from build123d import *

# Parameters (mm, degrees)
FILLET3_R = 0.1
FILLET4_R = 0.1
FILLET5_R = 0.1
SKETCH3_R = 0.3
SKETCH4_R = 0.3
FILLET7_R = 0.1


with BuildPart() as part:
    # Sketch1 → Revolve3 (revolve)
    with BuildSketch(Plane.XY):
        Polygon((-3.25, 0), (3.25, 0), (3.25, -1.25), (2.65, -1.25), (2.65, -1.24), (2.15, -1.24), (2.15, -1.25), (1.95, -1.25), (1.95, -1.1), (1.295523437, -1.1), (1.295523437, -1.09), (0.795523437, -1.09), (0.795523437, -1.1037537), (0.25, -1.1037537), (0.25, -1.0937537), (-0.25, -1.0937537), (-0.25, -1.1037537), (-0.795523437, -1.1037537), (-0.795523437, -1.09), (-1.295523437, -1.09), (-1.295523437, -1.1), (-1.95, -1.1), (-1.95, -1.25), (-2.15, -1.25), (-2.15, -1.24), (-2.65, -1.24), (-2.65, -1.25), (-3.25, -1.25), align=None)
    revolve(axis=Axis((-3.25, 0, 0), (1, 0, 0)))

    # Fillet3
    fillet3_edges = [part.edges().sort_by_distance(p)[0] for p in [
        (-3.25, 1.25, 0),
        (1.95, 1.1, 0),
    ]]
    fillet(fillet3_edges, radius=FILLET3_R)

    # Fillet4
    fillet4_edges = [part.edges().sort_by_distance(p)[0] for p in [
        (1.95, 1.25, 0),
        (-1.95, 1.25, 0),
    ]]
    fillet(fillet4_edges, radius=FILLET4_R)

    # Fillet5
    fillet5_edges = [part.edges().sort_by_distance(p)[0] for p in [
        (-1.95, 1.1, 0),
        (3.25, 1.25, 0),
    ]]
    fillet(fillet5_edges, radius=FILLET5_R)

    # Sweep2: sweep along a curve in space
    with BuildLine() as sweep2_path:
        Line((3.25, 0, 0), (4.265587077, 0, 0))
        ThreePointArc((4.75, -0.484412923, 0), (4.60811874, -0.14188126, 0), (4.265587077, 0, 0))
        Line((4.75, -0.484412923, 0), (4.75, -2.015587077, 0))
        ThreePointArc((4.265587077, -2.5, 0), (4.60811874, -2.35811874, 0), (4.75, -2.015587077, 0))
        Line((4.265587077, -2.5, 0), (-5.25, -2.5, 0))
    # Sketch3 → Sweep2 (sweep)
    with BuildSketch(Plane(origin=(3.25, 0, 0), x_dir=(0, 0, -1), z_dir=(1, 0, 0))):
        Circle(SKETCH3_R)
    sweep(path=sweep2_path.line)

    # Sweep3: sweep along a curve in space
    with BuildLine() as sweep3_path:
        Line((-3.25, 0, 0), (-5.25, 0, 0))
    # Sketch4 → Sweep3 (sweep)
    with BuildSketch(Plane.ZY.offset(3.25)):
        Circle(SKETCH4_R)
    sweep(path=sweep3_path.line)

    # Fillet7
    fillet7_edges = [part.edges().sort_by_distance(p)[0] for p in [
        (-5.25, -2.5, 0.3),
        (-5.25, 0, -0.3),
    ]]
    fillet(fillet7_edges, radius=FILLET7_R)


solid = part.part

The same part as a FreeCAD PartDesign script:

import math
import FreeCAD as App
import Part
import Sketcher
from FreeCAD import Vector
Q = App.Units.Quantity


def edges_at(feature, points):
    """Names of the edges that pass closest to the given points."""
    edges = feature.Shape.Edges
    near = lambda p: min(range(len(edges)), key=lambda i: edges[i].distToShape(Part.Vertex(*p))[0])
    return sorted({f"Edge{near(p) + 1}" for p in points})

doc = App.newDocument("Part")
params = doc.addObject("Spreadsheet::Sheet", "Params")
for row, (alias, value) in enumerate([
    ("sketch1_width", "6.5 mm"),
    ("sketch1_width2", "0.6 mm"),
    ("sketch1_width3", "0.5 mm"),
    ("sketch1_width4", "0.2 mm"),
    ("sketch1_height", "1.25 mm"),
    ("revolution_angle", "360 deg"),
    ("fillet_radius", "0.1 mm"),
    ("fillet2_radius", "0.1 mm"),
    ("fillet3_radius", "0.1 mm"),
    ("sketch2_diameter", "0.6 mm"),
    ("sketch4_diameter", "0.6 mm"),
    ("sketch5_width", "2 mm"),
    ("fillet4_radius", "0.1 mm"),
], start=1):
    params.set(f"A{row}", alias)
    params.set(f"B{row}", "=" + value)
    params.setAlias(f"B{row}", alias)

body = doc.addObject("PartDesign::Body", "Body")

# Sketch on XY plane
sketch1 = body.newObject("Sketcher::SketchObject", "Sketch")
sketch1.AttachmentSupport = (doc.getObject("XY_Plane"), [""])
sketch1.MapMode = "FlatFace"
sketch1.addGeometry(Part.LineSegment(Vector(3.25, 0, 0), Vector(-3.25, 0, 0)), False)
sketch1.addGeometry(Part.LineSegment(Vector(-3.25, 0, 0), Vector(-3.25, -1.25, 0)), False)
sketch1.addGeometry(Part.LineSegment(Vector(-3.25, -1.25, 0), Vector(-2.65, -1.25, 0)), False)
sketch1.addGeometry(Part.LineSegment(Vector(-2.65, -1.25, 0), Vector(-2.65, -1.24, 0)), False)
sketch1.addGeometry(Part.LineSegment(Vector(-2.65, -1.24, 0), Vector(-2.15, -1.24, 0)), False)
sketch1.addGeometry(Part.LineSegment(Vector(-2.15, -1.24, 0), Vector(-2.15, -1.25, 0)), False)
sketch1.addGeometry(Part.LineSegment(Vector(-2.15, -1.25, 0), Vector(-1.95, -1.25, 0)), False)
sketch1.addGeometry(Part.LineSegment(Vector(-1.95, -1.25, 0), Vector(-1.95, -1.1, 0)), False)
sketch1.addGeometry(Part.LineSegment(Vector(-1.95, -1.1, 0), Vector(-1.296, -1.1, 0)), False)
sketch1.addGeometry(Part.LineSegment(Vector(-1.296, -1.1, 0), Vector(-1.296, -1.09, 0)), False)
sketch1.addGeometry(Part.LineSegment(Vector(-1.296, -1.09, 0), Vector(-0.796, -1.09, 0)), False)
sketch1.addGeometry(Part.LineSegment(Vector(-0.796, -1.09, 0), Vector(-0.796, -1.104, 0)), False)
sketch1.addGeometry(Part.LineSegment(Vector(-0.796, -1.104, 0), Vector(-0.25, -1.104, 0)), False)
sketch1.addGeometry(Part.LineSegment(Vector(-0.25, -1.104, 0), Vector(-0.25, -1.094, 0)), False)
sketch1.addGeometry(Part.LineSegment(Vector(-0.25, -1.094, 0), Vector(0.25, -1.094, 0)), False)
sketch1.addGeometry(Part.LineSegment(Vector(0.25, -1.094, 0), Vector(0.25, -1.104, 0)), False)
sketch1.addGeometry(Part.LineSegment(Vector(0.25, -1.104, 0), Vector(0.796, -1.104, 0)), False)
sketch1.addGeometry(Part.LineSegment(Vector(0.796, -1.104, 0), Vector(0.796, -1.09, 0)), False)
sketch1.addGeometry(Part.LineSegment(Vector(0.796, -1.09, 0), Vector(1.296, -1.09, 0)), False)
sketch1.addGeometry(Part.LineSegment(Vector(1.296, -1.09, 0), Vector(1.296, -1.1, 0)), False)
sketch1.addGeometry(Part.LineSegment(Vector(1.296, -1.1, 0), Vector(1.95, -1.1, 0)), False)
sketch1.addGeometry(Part.LineSegment(Vector(1.95, -1.1, 0), Vector(1.95, -1.25, 0)), False)
sketch1.addGeometry(Part.LineSegment(Vector(1.95, -1.25, 0), Vector(2.15, -1.25, 0)), False)
sketch1.addGeometry(Part.LineSegment(Vector(2.15, -1.25, 0), Vector(2.15, -1.24, 0)), False)
sketch1.addGeometry(Part.LineSegment(Vector(2.15, -1.24, 0), Vector(2.65, -1.24, 0)), False)
sketch1.addGeometry(Part.LineSegment(Vector(2.65, -1.24, 0), Vector(2.65, -1.25, 0)), False)
sketch1.addGeometry(Part.LineSegment(Vector(2.65, -1.25, 0), Vector(3.25, -1.25, 0)), False)
sketch1.addGeometry(Part.LineSegment(Vector(3.25, -1.25, 0), Vector(3.25, 0, 0)), False)
sketch1.addConstraint(Sketcher.Constraint("Coincident", 0, 2, 1, 1))
sketch1.addConstraint(Sketcher.Constraint("Coincident", 1, 2, 2, 1))
sketch1.addConstraint(Sketcher.Constraint("Coincident", 2, 2, 3, 1))
sketch1.addConstraint(Sketcher.Constraint("Coincident", 3, 2, 4, 1))
sketch1.addConstraint(Sketcher.Constraint("Coincident", 4, 2, 5, 1))
sketch1.addConstraint(Sketcher.Constraint("Coincident", 5, 2, 6, 1))
sketch1.addConstraint(Sketcher.Constraint("Coincident", 6, 2, 7, 1))
sketch1.addConstraint(Sketcher.Constraint("Coincident", 7, 2, 8, 1))
sketch1.addConstraint(Sketcher.Constraint("Coincident", 8, 2, 9, 1))
sketch1.addConstraint(Sketcher.Constraint("Coincident", 9, 2, 10, 1))
sketch1.addConstraint(Sketcher.Constraint("Coincident", 10, 2, 11, 1))
sketch1.addConstraint(Sketcher.Constraint("Coincident", 11, 2, 12, 1))
sketch1.addConstraint(Sketcher.Constraint("Coincident", 12, 2, 13, 1))
sketch1.addConstraint(Sketcher.Constraint("Coincident", 13, 2, 14, 1))
sketch1.addConstraint(Sketcher.Constraint("Coincident", 14, 2, 15, 1))
sketch1.addConstraint(Sketcher.Constraint("Coincident", 15, 2, 16, 1))
sketch1.addConstraint(Sketcher.Constraint("Coincident", 16, 2, 17, 1))
sketch1.addConstraint(Sketcher.Constraint("Coincident", 17, 2, 18, 1))
sketch1.addConstraint(Sketcher.Constraint("Coincident", 18, 2, 19, 1))
sketch1.addConstraint(Sketcher.Constraint("Coincident", 19, 2, 20, 1))
sketch1.addConstraint(Sketcher.Constraint("Coincident", 20, 2, 21, 1))
sketch1.addConstraint(Sketcher.Constraint("Coincident", 21, 2, 22, 1))
sketch1.addConstraint(Sketcher.Constraint("Coincident", 22, 2, 23, 1))
sketch1.addConstraint(Sketcher.Constraint("Coincident", 23, 2, 24, 1))
sketch1.addConstraint(Sketcher.Constraint("Coincident", 24, 2, 25, 1))
sketch1.addConstraint(Sketcher.Constraint("Coincident", 25, 2, 26, 1))
sketch1.addConstraint(Sketcher.Constraint("Coincident", 26, 2, 27, 1))
sketch1.addConstraint(Sketcher.Constraint("Coincident", 27, 2, 0, 1))
sketch1.addConstraint(Sketcher.Constraint("Horizontal", 0))
sketch1.addConstraint(Sketcher.Constraint("Vertical", 1))
sketch1.addConstraint(Sketcher.Constraint("Horizontal", 2))
sketch1.addConstraint(Sketcher.Constraint("Vertical", 3))
sketch1.addConstraint(Sketcher.Constraint("Horizontal", 4))
sketch1.addConstraint(Sketcher.Constraint("Vertical", 5))
sketch1.addConstraint(Sketcher.Constraint("Horizontal", 6))
sketch1.addConstraint(Sketcher.Constraint("Vertical", 7))
sketch1.addConstraint(Sketcher.Constraint("Horizontal", 8))
sketch1.addConstraint(Sketcher.Constraint("Vertical", 9))
sketch1.addConstraint(Sketcher.Constraint("Horizontal", 10))
sketch1.addConstraint(Sketcher.Constraint("Vertical", 11))
sketch1.addConstraint(Sketcher.Constraint("Horizontal", 12))
sketch1.addConstraint(Sketcher.Constraint("Vertical", 13))
sketch1.addConstraint(Sketcher.Constraint("Horizontal", 14))
sketch1.addConstraint(Sketcher.Constraint("Vertical", 15))
sketch1.addConstraint(Sketcher.Constraint("Horizontal", 16))
sketch1.addConstraint(Sketcher.Constraint("Vertical", 17))
sketch1.addConstraint(Sketcher.Constraint("Horizontal", 18))
sketch1.addConstraint(Sketcher.Constraint("Vertical", 19))
sketch1.addConstraint(Sketcher.Constraint("Horizontal", 20))
sketch1.addConstraint(Sketcher.Constraint("Vertical", 21))
sketch1.addConstraint(Sketcher.Constraint("Horizontal", 22))
sketch1.addConstraint(Sketcher.Constraint("Vertical", 23))
sketch1.addConstraint(Sketcher.Constraint("Horizontal", 24))
sketch1.addConstraint(Sketcher.Constraint("Vertical", 25))
sketch1.addConstraint(Sketcher.Constraint("Horizontal", 26))
sketch1.addConstraint(Sketcher.Constraint("Vertical", 27))
sketch1.addConstraint(Sketcher.Constraint("Symmetric", 0, 2, 27, 2, -1, 1))
sketch1.addConstraint(Sketcher.Constraint("Symmetric", 12, 2, 15, 2, -2))
sketch1.addConstraint(Sketcher.Constraint("Symmetric", 10, 2, 17, 2, -2))
sketch1.addConstraint(Sketcher.Constraint("Symmetric", 8, 2, 19, 2, -2))
sketch1.addConstraint(Sketcher.Constraint("Symmetric", 6, 2, 21, 2, -2))
sketch1.addConstraint(Sketcher.Constraint("Symmetric", 4, 2, 23, 2, -2))
sketch1.addConstraint(Sketcher.Constraint("Symmetric", 2, 2, 25, 2, -2))
sketch1.addConstraint(Sketcher.Constraint("Horizontal", 2, 2, 5, 2))
sketch1.addConstraint(Sketcher.Constraint("Equal", 4, 10))
sketch1.addConstraint(Sketcher.Constraint("Equal", 10, 14))
sketch1.addConstraint(Sketcher.Constraint("Equal", 5, 9))
sketch1.addConstraint(Sketcher.Constraint("Equal", 9, 13))
sketch1.addConstraint(Sketcher.Constraint("DistanceX", 0, 2, 0, 1, Q("6.5 mm")))
sketch1.addConstraint(Sketcher.Constraint("DistanceX", 2, 1, 2, 2, Q("0.6 mm")))
sketch1.addConstraint(Sketcher.Constraint("DistanceX", 4, 1, 4, 2, Q("0.5 mm")))
sketch1.addConstraint(Sketcher.Constraint("DistanceX", 6, 1, 6, 2, Q("0.2 mm")))
sketch1.addConstraint(Sketcher.Constraint("DistanceY", 1, 2, 1, 1, Q("1.25 mm")))
sketch1.addConstraint(Sketcher.Constraint("DistanceY", 3, 1, 3, 2, Q("0.01 mm")))
sketch1.addConstraint(Sketcher.Constraint("DistanceY", 7, 1, 7, 2, Q("0.15 mm")))
sketch1.addConstraint(Sketcher.Constraint("DistanceX", 8, 1, 8, 2, Q("0.654477 mm")))
sketch1.addConstraint(Sketcher.Constraint("DistanceY", 11, 2, 11, 1, Q("0.013754 mm")))
sketch1.setExpression("Constraints[68]", "Params.sketch1_width")
sketch1.setExpression("Constraints[69]", "Params.sketch1_width2")
sketch1.setExpression("Constraints[70]", "Params.sketch1_width3")
sketch1.setExpression("Constraints[71]", "Params.sketch1_width4")
sketch1.setExpression("Constraints[72]", "Params.sketch1_height")
revolution = body.newObject("PartDesign::Revolution", "Revolution")
revolution.Profile = sketch1
revolution.ReferenceAxis = (sketch1, ["H_Axis"])
revolution.setExpression("Angle", "Params.revolution_angle")
doc.recompute()

fillet = body.newObject("PartDesign::Fillet", "Fillet")
fillet.Base = (revolution, edges_at(revolution, [(-3.25, 1.25, 0), (1.95, 1.1, 0)]))
fillet.setExpression("Radius", "Params.fillet_radius")
doc.recompute()

fillet2 = body.newObject("PartDesign::Fillet", "Fillet001")
fillet2.Base = (fillet, edges_at(fillet, [(1.95, 1.25, 0), (-1.95, 1.25, 0)]))
fillet2.setExpression("Radius", "Params.fillet2_radius")
doc.recompute()

fillet3 = body.newObject("PartDesign::Fillet", "Fillet002")
fillet3.Base = (fillet2, edges_at(fillet2, [(-1.95, 1.1, 0), (3.25, 1.25, 0)]))
fillet3.setExpression("Radius", "Params.fillet3_radius")

# Sketch on YZ plane
sketch2 = body.newObject("Sketcher::SketchObject", "Sketch001")
sketch2.AttachmentSupport = (doc.getObject("YZ_Plane"), [""])
sketch2.MapMode = "FlatFace"
sketch2.AttachmentOffset = App.Placement(Vector(0, 0, 3.25), App.Rotation())
sketch2.addGeometry(Part.Circle(Vector(0, 0, 0), Vector(0, 0, 1), 0.3), False)
sketch2.addConstraint(Sketcher.Constraint("Coincident", 0, 3, -1, 1))
sketch2.addConstraint(Sketcher.Constraint("Diameter", 0, Q("0.6 mm")))
sketch2.setExpression("Constraints[1]", "Params.sketch2_diameter")

# Sketch on XY plane
sketch3 = body.newObject("Sketcher::SketchObject", "Sketch002")
sketch3.AttachmentSupport = (doc.getObject("XY_Plane"), [""])
sketch3.MapMode = "FlatFace"
sketch3.addGeometry(Part.LineSegment(Vector(3.25, 0, 0), Vector(4.27, 0, 0)), False)
sketch3.addGeometry(Part.ArcOfCircle(Part.Circle(Vector(4.27, -0.48, 0), Vector(0, 0, 1), 0.48), math.radians(0), math.radians(90)), False)
sketch3.addGeometry(Part.LineSegment(Vector(4.75, -0.48, 0), Vector(4.75, -2.02, 0)), False)
sketch3.addGeometry(Part.ArcOfCircle(Part.Circle(Vector(4.27, -2.02, 0), Vector(0, 0, 1), 0.48), math.radians(-90), math.radians(0)), False)
sketch3.addGeometry(Part.LineSegment(Vector(4.27, -2.5, 0), Vector(-5.25, -2.5, 0)), False)
sketch3.addConstraint(Sketcher.Constraint("Tangent", 0, 2, 1, 2))
sketch3.addConstraint(Sketcher.Constraint("Tangent", 1, 1, 2, 1))
sketch3.addConstraint(Sketcher.Constraint("Tangent", 2, 2, 3, 2))
sketch3.addConstraint(Sketcher.Constraint("Tangent", 3, 1, 4, 1))
sketch3.addConstraint(Sketcher.Constraint("Horizontal", 0))
sketch3.addConstraint(Sketcher.Constraint("Vertical", 2))
sketch3.addConstraint(Sketcher.Constraint("Horizontal", 4))
sketch3.addConstraint(Sketcher.Constraint("Equal", 1, 3))
sketch3.addConstraint(Sketcher.Constraint("PointOnObject", 0, 1, -1))
sketch3.addConstraint(Sketcher.Constraint("DistanceY", 3, 1, -1, 1, Q("2.5 mm")))
sketch3.addConstraint(Sketcher.Constraint("DistanceX", 0, 1, 1, 1, Q("1.5 mm")))
sketch3.addConstraint(Sketcher.Constraint("DistanceX", 4, 2, 0, 1, Q("8.5 mm")))
sketch3.addConstraint(Sketcher.Constraint("DistanceX", -1, 1, 0, 1, Q("3.25 mm")))
sketch3.addConstraint(Sketcher.Constraint("Radius", 1, Q("0.484413 mm")))
doc.recompute()

additivepipe = body.newObject("PartDesign::AdditivePipe", "AdditivePipe")
additivepipe.Profile = sketch2
additivepipe.Spine = (sketch3, ["Edge1", "Edge2", "Edge3", "Edge4", "Edge5"])

# Sketch on YZ plane
sketch4 = body.newObject("Sketcher::SketchObject", "Sketch003")
sketch4.AttachmentSupport = (doc.getObject("YZ_Plane"), [""])
sketch4.MapMode = "FlatFace"
sketch4.AttachmentOffset = App.Placement(Vector(0, 0, -3.25), App.Rotation())
sketch4.addGeometry(Part.Circle(Vector(0, 0, 0), Vector(0, 0, 1), 0.3), False)
sketch4.addConstraint(Sketcher.Constraint("Coincident", 0, 3, -1, 1))
sketch4.addConstraint(Sketcher.Constraint("Diameter", 0, Q("0.6 mm")))
sketch4.setExpression("Constraints[1]", "Params.sketch4_diameter")

# Sketch on XY plane
sketch5 = body.newObject("Sketcher::SketchObject", "Sketch004")
sketch5.AttachmentSupport = (doc.getObject("XY_Plane"), [""])
sketch5.MapMode = "FlatFace"
sketch5.addGeometry(Part.LineSegment(Vector(-3.2, 0, 0), Vector(-5.2, 0, 0)), False)
sketch5.addConstraint(Sketcher.Constraint("Horizontal", 0))
sketch5.addConstraint(Sketcher.Constraint("PointOnObject", 0, 1, -1))
sketch5.addConstraint(Sketcher.Constraint("DistanceX", 0, 2, 0, 1, Q("2 mm")))
sketch5.addConstraint(Sketcher.Constraint("DistanceX", 0, 1, -1, 1, Q("3.25 mm")))
sketch5.setExpression("Constraints[2]", "Params.sketch5_width")
doc.recompute()

additivepipe2 = body.newObject("PartDesign::AdditivePipe", "AdditivePipe001")
additivepipe2.Profile = sketch4
additivepipe2.Spine = (sketch5, ["Edge1"])
doc.recompute()

fillet4 = body.newObject("PartDesign::Fillet", "Fillet003")
fillet4.Base = (additivepipe2, edges_at(additivepipe2, [(-5.25, -2.5, 0.3), (-5.25, 0, -0.3)]))
fillet4.setExpression("Radius", "Params.fillet4_radius")

doc.recompute()
